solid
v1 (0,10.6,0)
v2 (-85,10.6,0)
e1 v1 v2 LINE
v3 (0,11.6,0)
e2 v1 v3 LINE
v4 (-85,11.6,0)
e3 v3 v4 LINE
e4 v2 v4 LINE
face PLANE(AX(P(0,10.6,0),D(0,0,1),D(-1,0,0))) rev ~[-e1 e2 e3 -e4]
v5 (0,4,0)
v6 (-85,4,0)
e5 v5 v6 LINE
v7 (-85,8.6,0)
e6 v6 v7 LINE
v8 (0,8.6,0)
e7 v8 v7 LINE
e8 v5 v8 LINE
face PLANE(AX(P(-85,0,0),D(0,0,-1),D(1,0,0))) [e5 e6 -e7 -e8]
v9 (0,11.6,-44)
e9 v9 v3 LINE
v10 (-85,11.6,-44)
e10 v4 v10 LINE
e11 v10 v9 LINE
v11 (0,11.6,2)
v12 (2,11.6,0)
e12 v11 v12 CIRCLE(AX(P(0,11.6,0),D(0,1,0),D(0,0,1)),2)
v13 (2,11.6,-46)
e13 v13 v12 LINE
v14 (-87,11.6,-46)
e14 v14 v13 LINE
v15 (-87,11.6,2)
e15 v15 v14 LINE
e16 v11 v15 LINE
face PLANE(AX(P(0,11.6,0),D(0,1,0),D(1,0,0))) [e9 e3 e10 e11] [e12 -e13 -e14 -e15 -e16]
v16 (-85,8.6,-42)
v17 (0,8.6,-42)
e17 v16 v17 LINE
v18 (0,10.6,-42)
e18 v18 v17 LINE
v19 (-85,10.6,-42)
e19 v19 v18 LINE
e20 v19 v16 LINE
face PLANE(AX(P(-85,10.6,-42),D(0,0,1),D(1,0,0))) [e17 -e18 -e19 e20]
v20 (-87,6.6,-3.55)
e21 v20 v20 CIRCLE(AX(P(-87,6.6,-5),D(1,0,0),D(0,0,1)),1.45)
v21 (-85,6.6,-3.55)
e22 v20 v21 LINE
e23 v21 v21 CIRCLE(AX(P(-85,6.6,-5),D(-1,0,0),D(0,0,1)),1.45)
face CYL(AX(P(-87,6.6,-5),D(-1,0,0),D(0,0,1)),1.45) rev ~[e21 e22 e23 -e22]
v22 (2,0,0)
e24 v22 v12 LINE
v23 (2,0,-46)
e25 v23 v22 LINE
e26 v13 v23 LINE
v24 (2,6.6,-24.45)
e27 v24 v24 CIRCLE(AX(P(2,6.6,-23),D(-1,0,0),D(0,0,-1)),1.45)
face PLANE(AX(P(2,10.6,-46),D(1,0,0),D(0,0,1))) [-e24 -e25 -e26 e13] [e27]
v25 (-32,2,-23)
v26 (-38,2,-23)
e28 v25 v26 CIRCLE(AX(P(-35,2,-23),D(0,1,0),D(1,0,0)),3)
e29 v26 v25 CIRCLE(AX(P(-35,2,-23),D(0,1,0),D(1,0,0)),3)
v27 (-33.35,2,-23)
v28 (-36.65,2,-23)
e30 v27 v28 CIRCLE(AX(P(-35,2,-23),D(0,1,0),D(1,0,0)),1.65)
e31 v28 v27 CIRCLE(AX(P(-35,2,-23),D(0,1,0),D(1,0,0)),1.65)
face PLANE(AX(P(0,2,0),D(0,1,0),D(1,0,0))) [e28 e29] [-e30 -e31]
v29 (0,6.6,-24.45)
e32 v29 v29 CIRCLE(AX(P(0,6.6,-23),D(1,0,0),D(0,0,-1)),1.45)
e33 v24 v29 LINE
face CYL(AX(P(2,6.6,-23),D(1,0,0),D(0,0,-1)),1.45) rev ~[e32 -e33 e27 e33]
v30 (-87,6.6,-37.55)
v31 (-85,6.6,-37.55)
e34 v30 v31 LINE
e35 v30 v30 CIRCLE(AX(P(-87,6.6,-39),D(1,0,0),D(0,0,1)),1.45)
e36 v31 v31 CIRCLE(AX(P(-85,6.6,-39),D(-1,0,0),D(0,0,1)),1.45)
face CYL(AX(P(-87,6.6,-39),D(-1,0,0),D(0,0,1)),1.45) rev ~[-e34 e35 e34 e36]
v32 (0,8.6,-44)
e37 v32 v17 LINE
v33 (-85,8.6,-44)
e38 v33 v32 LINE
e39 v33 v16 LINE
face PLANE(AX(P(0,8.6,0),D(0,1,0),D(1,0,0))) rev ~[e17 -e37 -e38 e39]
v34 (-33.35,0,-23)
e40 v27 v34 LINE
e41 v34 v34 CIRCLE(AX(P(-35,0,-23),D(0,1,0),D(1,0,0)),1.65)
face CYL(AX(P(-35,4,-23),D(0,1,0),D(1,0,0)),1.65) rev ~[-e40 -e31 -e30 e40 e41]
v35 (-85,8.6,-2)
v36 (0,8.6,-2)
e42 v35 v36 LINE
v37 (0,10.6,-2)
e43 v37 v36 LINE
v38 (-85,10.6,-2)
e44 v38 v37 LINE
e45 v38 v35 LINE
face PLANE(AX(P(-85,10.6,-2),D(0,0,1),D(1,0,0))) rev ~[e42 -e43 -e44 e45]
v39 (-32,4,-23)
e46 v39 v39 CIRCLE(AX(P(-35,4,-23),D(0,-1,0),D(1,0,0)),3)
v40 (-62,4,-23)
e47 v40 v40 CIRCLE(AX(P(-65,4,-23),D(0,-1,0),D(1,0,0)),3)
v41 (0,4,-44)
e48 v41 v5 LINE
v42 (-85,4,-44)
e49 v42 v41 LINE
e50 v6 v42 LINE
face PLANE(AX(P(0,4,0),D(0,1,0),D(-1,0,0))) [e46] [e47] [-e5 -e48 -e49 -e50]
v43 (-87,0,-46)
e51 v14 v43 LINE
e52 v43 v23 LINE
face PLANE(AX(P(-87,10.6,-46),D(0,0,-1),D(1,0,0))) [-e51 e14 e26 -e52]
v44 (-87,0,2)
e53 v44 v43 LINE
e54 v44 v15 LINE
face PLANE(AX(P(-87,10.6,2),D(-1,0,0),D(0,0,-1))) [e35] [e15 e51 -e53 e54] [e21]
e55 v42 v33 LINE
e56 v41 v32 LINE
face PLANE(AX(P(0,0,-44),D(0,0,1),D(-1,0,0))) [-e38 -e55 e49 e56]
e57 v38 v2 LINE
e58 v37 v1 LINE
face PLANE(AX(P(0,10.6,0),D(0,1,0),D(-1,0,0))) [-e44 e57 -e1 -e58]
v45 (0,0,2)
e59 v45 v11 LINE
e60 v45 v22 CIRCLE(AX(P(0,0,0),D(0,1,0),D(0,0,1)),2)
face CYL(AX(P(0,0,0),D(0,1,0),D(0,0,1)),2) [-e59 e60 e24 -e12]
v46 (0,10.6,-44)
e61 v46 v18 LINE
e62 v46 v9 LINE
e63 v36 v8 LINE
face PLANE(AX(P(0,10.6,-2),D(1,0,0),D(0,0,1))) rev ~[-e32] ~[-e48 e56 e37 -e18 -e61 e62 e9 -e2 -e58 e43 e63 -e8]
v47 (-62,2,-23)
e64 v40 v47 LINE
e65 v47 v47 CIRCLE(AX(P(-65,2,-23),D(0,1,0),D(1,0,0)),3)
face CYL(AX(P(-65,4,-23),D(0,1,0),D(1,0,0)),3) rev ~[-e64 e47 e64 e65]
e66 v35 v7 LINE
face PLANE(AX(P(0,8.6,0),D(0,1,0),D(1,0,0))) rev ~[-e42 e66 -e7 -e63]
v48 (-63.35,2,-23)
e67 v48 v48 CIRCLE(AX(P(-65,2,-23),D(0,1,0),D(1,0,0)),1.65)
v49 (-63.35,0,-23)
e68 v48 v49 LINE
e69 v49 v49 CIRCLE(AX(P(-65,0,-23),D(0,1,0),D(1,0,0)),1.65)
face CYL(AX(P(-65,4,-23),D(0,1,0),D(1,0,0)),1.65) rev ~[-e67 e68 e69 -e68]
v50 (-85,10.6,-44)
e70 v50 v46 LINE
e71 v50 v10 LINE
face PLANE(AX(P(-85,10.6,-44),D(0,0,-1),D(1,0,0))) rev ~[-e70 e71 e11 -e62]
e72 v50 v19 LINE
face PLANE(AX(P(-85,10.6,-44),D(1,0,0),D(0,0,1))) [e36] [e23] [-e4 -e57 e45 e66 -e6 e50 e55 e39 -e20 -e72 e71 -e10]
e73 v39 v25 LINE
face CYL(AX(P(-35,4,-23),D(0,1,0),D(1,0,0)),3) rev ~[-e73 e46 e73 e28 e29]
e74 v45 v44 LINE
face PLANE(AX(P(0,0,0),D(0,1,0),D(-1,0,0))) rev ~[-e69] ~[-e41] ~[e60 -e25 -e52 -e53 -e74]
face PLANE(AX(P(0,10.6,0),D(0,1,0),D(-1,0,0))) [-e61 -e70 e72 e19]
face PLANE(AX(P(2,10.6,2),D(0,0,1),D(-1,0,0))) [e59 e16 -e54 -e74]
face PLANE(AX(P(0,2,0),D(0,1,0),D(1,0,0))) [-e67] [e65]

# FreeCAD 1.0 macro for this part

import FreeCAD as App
import Part
import Sketcher
from FreeCAD import Vector
Q = App.Units.Quantity


def edges_at(feature, points):
    """Names of the edges that pass closest to the given points."""
    edges = feature.Shape.Edges
    near = lambda p: min(range(len(edges)), key=lambda i: edges[i].distToShape(Part.Vertex(*p))[0])
    return sorted({f"Edge{near(p) + 1}" for p in points})

doc = App.newDocument("Part")
params = doc.addObject("Spreadsheet::Sheet", "Params")
for row, (alias, value) in enumerate([
    ("sketch1_width", "89 mm"),
    ("sketch1_height", "48 mm"),
    ("pad1_length", "4 mm"),
    ("sketch2_width", "85 mm"),
    ("sketch2_height", "44 mm"),
    ("pad2_length", "10.6 mm"),
    ("sketch3_height", "2 mm"),
    ("sketch3_width", "85 mm"),
    ("pad3_length", "2 mm"),
    ("sketch4_width", "89 mm"),
    ("sketch4_height", "48 mm"),
    ("pad4_length", "1 mm"),
    ("fillet_radius", "2 mm"),
    ("sketch5_diameter", "2.9 mm"),
    ("pocket1_length", "15 mm"),
    ("sketch6_diameter", "2.9 mm"),
    ("pocket2_length", "15 mm"),
    ("sketch7_diameter", "3.3 mm"),
    ("pocket3_length", "10 mm"),
    ("sketch8_diameter", "6 mm"),
    ("sketch8_diameter2", "3.3 mm"),
    ("pocket4_length", "2 mm"),
], start=1):
    params.set(f"A{row}", alias)
    params.set(f"B{row}", "=" + value)
    params.setAlias(f"B{row}", alias)

body = doc.addObject("PartDesign::Body", "Body")

# Sketch on XZ plane
sketch1 = doc.addObject("Sketcher::SketchObject", "Sketch")
body.addObject(sketch1)
sketch1.AttachmentSupport = (doc.XZ_Plane, [""])
sketch1.MapMode = "FlatFace"
sketch1.addGeometry([
    Part.LineSegment(Vector(2, 2, 0), Vector(2, -46, 0)),
    Part.LineSegment(Vector(2, -46, 0), Vector(-87, -46, 0)),
    Part.LineSegment(Vector(-87, -46, 0), Vector(-87, 2, 0)),
    Part.LineSegment(Vector(-87, 2, 0), Vector(2, 2, 0)),
], False)
sketch1.addConstraint([
    Sketcher.Constraint("Coincident", 0, 2, 1, 1),
    Sketcher.Constraint("Coincident", 1, 2, 2, 1),
    Sketcher.Constraint("Coincident", 2, 2, 3, 1),
    Sketcher.Constraint("Coincident", 3, 2, 0, 1),
    Sketcher.Constraint("Vertical", 0),
    Sketcher.Constraint("Horizontal", 1),
    Sketcher.Constraint("Vertical", 2),
    Sketcher.Constraint("Horizontal", 3),
    Sketcher.Constraint("DistanceX", -1, 1, 0, 2, Q("2 mm")),
    Sketcher.Constraint("DistanceY", -1, 1, 2, 2, Q("2 mm")),
    Sketcher.Constraint("DistanceX", 1, 2, 1, 1, Q("89 mm")),
    Sketcher.Constraint("DistanceY", 0, 2, 0, 1, Q("48 mm")),
])
sketch1.setExpression("Constraints[10]", "Params.sketch1_width")
sketch1.setExpression("Constraints[11]", "Params.sketch1_height")
pad1 = doc.addObject("PartDesign::Pad", "Pad")
body.addObject(pad1)
pad1.Profile = sketch1
pad1.setExpression("Length", "Params.pad1_length")
pad1.Reversed = True

# Sketch on XZ plane
sketch2 = doc.addObject("Sketcher::SketchObject", "Sketch001")
body.addObject(sketch2)
sketch2.AttachmentSupport = (doc.XZ_Plane, [""])
sketch2.MapMode = "FlatFace"
sketch2.addGeometry([
    Part.LineSegment(Vector(-87, 2, 0), Vector(2, 2, 0)),  # 0
    Part.LineSegment(Vector(2, 2, 0), Vector(2, -46, 0)),  # 1
    Part.LineSegment(Vector(2, -46, 0), Vector(-87, -46, 0)),  # 2
    Part.LineSegment(Vector(-87, -46, 0), Vector(-87, 2, 0)),  # 3
    Part.LineSegment(Vector(0, -44, 0), Vector(0, 0, 0)),  # 4
    Part.LineSegment(Vector(0, 0, 0), Vector(-85, 0, 0)),  # 5
    Part.LineSegment(Vector(-85, 0, 0), Vector(-85, -44, 0)),  # 6
    Part.LineSegment(Vector(-85, -44, 0), Vector(0, -44, 0)),  # 7
], False)
sketch2.addConstraint([
    Sketcher.Constraint("Coincident", 0, 2, 1, 1),
    Sketcher.Constraint("Coincident", 1, 2, 2, 1),
    Sketcher.Constraint("Coincident", 2, 2, 3, 1),
    Sketcher.Constraint("Coincident", 3, 2, 0, 1),
    Sketcher.Constraint("Coincident", 4, 2, 5, 1),
    Sketcher.Constraint("Coincident", 5, 2, 6, 1),
    Sketcher.Constraint("Coincident", 6, 2, 7, 1),
    Sketcher.Constraint("Coincident", 7, 2, 4, 1),
    Sketcher.Constraint("Horizontal", 0),
    Sketcher.Constraint("Vertical", 1),
    Sketcher.Constraint("Horizontal", 2),
    Sketcher.Constraint("Vertical", 3),
    Sketcher.Constraint("Vertical", 4),
    Sketcher.Constraint("Horizontal", 5),
    Sketcher.Constraint("Vertical", 6),
    Sketcher.Constraint("Horizontal", 7),
    Sketcher.Constraint("Coincident", 4, 2, -1, 1),
    Sketcher.Constraint("DistanceX", 5, 2, 5, 1, Q("85 mm")),
    Sketcher.Constraint("DistanceY", 4, 1, 4, 2, Q("44 mm")),
    Sketcher.Constraint("DistanceX", -1, 1, 0, 2, Q("2 mm")),
    Sketcher.Constraint("DistanceY", -1, 1, 0, 2, Q("2 mm")),
    Sketcher.Constraint("DistanceX", 3, 2, 5, 2, Q("2 mm")),
    Sketcher.Constraint("DistanceY", 2, 2, 6, 2, Q("2 mm")),
])
sketch2.setExpression("Constraints[17]", "Params.sketch2_width")
sketch2.setExpression("Constraints[18]", "Params.sketch2_height")
pad2 = doc.addObject("PartDesign::Pad", "Pad001")
body.addObject(pad2)
pad2.Profile = sketch2
pad2.setExpression("Length", "Params.pad2_length")
pad2.Reversed = True

# Sketch on XZ plane
sketch3 = doc.addObject("Sketcher::SketchObject", "Sketch002")
body.addObject(sketch3)
sketch3.AttachmentSupport = (doc.XZ_Plane, [""])
sketch3.MapMode = "FlatFace"
sketch3.AttachmentOffset = App.Placement(Vector(0, 0, -10.6), App.Rotation())
sketch3.addGeometry([
    Part.LineSegment(Vector(0, -44, 0), Vector(-85, -44, 0)),  # 0
    Part.LineSegment(Vector(-85, -44, 0), Vector(-85, -42, 0)),  # 1
    Part.LineSegment(Vector(-85, -42, 0), Vector(0, -42, 0)),  # 2
    Part.LineSegment(Vector(0, -42, 0), Vector(0, -44, 0)),  # 3
    Part.LineSegment(Vector(0, -2, 0), Vector(-85, -2, 0)),  # 4
    Part.LineSegment(Vector(-85, -2, 0), Vector(-85, 0, 0)),  # 5
    Part.LineSegment(Vector(-85, 0, 0), Vector(0, 0, 0)),  # 6
    Part.LineSegment(Vector(0, 0, 0), Vector(0, -2, 0)),  # 7
], False)
sketch3.addConstraint([
    Sketcher.Constraint("Coincident", 0, 2, 1, 1),
    Sketcher.Constraint("Coincident", 1, 2, 2, 1),
    Sketcher.Constraint("Coincident", 2, 2, 3, 1),
    Sketcher.Constraint("Coincident", 3, 2, 0, 1),
    Sketcher.Constraint("Coincident", 4, 2, 5, 1),
    Sketcher.Constraint("Coincident", 5, 2, 6, 1),
    Sketcher.Constraint("Coincident", 6, 2, 7, 1),
    Sketcher.Constraint("Coincident", 7, 2, 4, 1),
    Sketcher.Constraint("Horizontal", 0),
    Sketcher.Constraint("Vertical", 1),
    Sketcher.Constraint("Horizontal", 2),
    Sketcher.Constraint("Vertical", 3),
    Sketcher.Constraint("Horizontal", 4),
    Sketcher.Constraint("Vertical", 5),
    Sketcher.Constraint("Horizontal", 6),
    Sketcher.Constraint("Vertical", 7),
    Sketcher.Constraint("Coincident", 6, 2, -1, 1),
    Sketcher.Constraint("PointOnObject", 2, 2, -2),
    Sketcher.Constraint("Vertical", 1, 2, 4, 2),
    Sketcher.Constraint("Equal", 3, 5),
    Sketcher.Constraint("DistanceY", 1, 1, 1, 2, Q("2 mm")),
    Sketcher.Constraint("DistanceX", 0, 2, 0, 1, Q("85 mm")),
    Sketcher.Constraint("DistanceY", 0, 2, -1, 1, Q("44 mm")),
])
sketch3.setExpression("Constraints[20]", "Params.sketch3_height")
sketch3.setExpression("Constraints[21]", "Params.sketch3_width")
pad3 = doc.addObject("PartDesign::Pad", "Pad002")
body.addObject(pad3)
pad3.Profile = sketch3
pad3.setExpression("Length", "Params.pad3_length")

# Sketch on XZ plane
sketch4 = doc.addObject("Sketcher::SketchObject", "Sketch003")
body.addObject(sketch4)
sketch4.AttachmentSupport = (doc.XZ_Plane, [""])
sketch4.MapMode = "FlatFace"
sketch4.AttachmentOffset = App.Placement(Vector(0, 0, -10.6), App.Rotation())
sketch4.addGeometry([
    Part.LineSegment(Vector(-87, -46, 0), Vector(-87, 2, 0)),  # 0
    Part.LineSegment(Vector(-87, 2, 0), Vector(2, 2, 0)),  # 1
    Part.LineSegment(Vector(2, 2, 0), Vector(2, -46, 0)),  # 2
    Part.LineSegment(Vector(2, -46, 0), Vector(-87, -46, 0)),  # 3
    Part.LineSegment(Vector(-85, 0, 0), Vector(-85, -44, 0)),  # 4
    Part.LineSegment(Vector(-85, -44, 0), Vector(0, -44, 0)),  # 5
    Part.LineSegment(Vector(0, -44, 0), Vector(0, 0, 0)),  # 6
    Part.LineSegment(Vector(0, 0, 0), Vector(-85, 0, 0)),  # 7
], False)
sketch4.addConstraint([
    Sketcher.Constraint("Coincident", 0, 2, 1, 1),
    Sketcher.Constraint("Coincident", 1, 2, 2, 1),
    Sketcher.Constraint("Coincident", 2, 2, 3, 1),
    Sketcher.Constraint("Coincident", 3, 2, 0, 1),
    Sketcher.Constraint("Coincident", 4, 2, 5, 1),
    Sketcher.Constraint("Coincident", 5, 2, 6, 1),
    Sketcher.Constraint("Coincident", 6, 2, 7, 1),
    Sketcher.Constraint("Coincident", 7, 2, 4, 1),
    Sketcher.Constraint("Vertical", 0),
    Sketcher.Constraint("Horizontal", 1),
    Sketcher.Constraint("Vertical", 2),
    Sketcher.Constraint("Horizontal", 3),
    Sketcher.Constraint("Vertical", 4),
    Sketcher.Constraint("Horizontal", 5),
    Sketcher.Constraint("Vertical", 6),
    Sketcher.Constraint("Horizontal", 7),
    Sketcher.Constraint("Coincident", 6, 2, -1, 1),
    Sketcher.Constraint("DistanceY", -1, 1, 0, 2, Q("2 mm")),
    Sketcher.Constraint("DistanceX", -1, 1, 1, 2, Q("2 mm")),
    Sketcher.Constraint("DistanceX", 3, 2, 4, 2, Q("2 mm")),
    Sketcher.Constraint("DistanceY", 3, 2, 4, 2, Q("2 mm")),
    Sketcher.Constraint("DistanceX", 1, 1, 1, 2, Q("89 mm")),
    Sketcher.Constraint("DistanceY", 0, 1, 0, 2, Q("48 mm")),
])
sketch4.setExpression("Constraints[21]", "Params.sketch4_width")
sketch4.setExpression("Constraints[22]", "Params.sketch4_height")
pad4 = doc.addObject("PartDesign::Pad", "Pad003")
body.addObject(pad4)
pad4.Profile = sketch4
pad4.setExpression("Length", "Params.pad4_length")
pad4.Reversed = True
doc.recompute()

fillet = doc.addObject("PartDesign::Fillet", "Fillet")
body.addObject(fillet)
fillet.Base = (pad4, edges_at(pad4, [(2, 5.8, 2)]))
fillet.setExpression("Radius", "Params.fillet_radius")

# Sketch on YZ plane
sketch5 = doc.addObject("Sketcher::SketchObject", "Sketch004")
body.addObject(sketch5)
sketch5.AttachmentSupport = (doc.YZ_Plane, [""])
sketch5.MapMode = "FlatFace"
sketch5.AttachmentOffset = App.Placement(Vector(0, 0, 2), App.Rotation())
sketch5.addGeometry(Part.Circle(Vector(6.6, -23, 0), Vector(0, 0, 1), 1.45), False)
sketch5.addConstraint([
    Sketcher.Constraint("Diameter", 0, Q("2.9 mm")),
    Sketcher.Constraint("DistanceY", 0, 3, -1, 1, Q("23 mm")),
    Sketcher.Constraint("DistanceX", -1, 1, 0, 3, Q("6.6 mm")),
])
sketch5.setExpression("Constraints[0]", "Params.sketch5_diameter")
pocket1 = doc.addObject("PartDesign::Pocket", "Pocket")
body.addObject(pocket1)
pocket1.Profile = sketch5
pocket1.setExpression("Length", "Params.pocket1_length")

# Sketch on YZ plane
sketch6 = doc.addObject("Sketcher::SketchObject", "Sketch005")
body.addObject(sketch6)
sketch6.AttachmentSupport = (doc.YZ_Plane, [""])
sketch6.MapMode = "FlatFace"
sketch6.AttachmentOffset = App.Placement(Vector(0, 0, -87), App.Rotation())
sketch6.addGeometry([
    Part.Circle(Vector(6.6, -39, 0), Vector(0, 0, 1), 1.45),
    Part.Circle(Vector(6.6, -5, 0), Vector(0, 0, 1), 1.45),
], False)
sketch6.addConstraint([
    Sketcher.Constraint("Equal", 0, 1),
    Sketcher.Constraint("Vertical", 0, 3, 1, 3),
    Sketcher.Constraint("Diameter", 0, Q("2.9 mm")),
    Sketcher.Constraint("DistanceY", 1, 3, -1, 1, Q("5 mm")),
    Sketcher.Constraint("DistanceY", 0, 3, -1, 1, Q("39 mm")),
    Sketcher.Constraint("DistanceX", -1, 1, 0, 3, Q("6.6 mm")),
])
sketch6.setExpression("Constraints[2]", "Params.sketch6_diameter")
pocket2 = doc.addObject("PartDesign::Pocket", "Pocket001")
body.addObject(pocket2)
pocket2.Profile = sketch6
pocket2.setExpression("Length", "Params.pocket2_length")
pocket2.Reversed = True

# Sketch on XZ plane
sketch7 = doc.addObject("Sketcher::SketchObject", "Sketch006")
body.addObject(sketch7)
sketch7.AttachmentSupport = (doc.XZ_Plane, [""])
sketch7.MapMode = "FlatFace"
sketch7.AttachmentOffset = App.Placement(Vector(0, 0, -4), App.Rotation())
sketch7.addGeometry([
    Part.Circle(Vector(-35, -23, 0), Vector(0, 0, 1), 1.65),
    Part.Circle(Vector(-65, -23, 0), Vector(0, 0, 1), 1.65),
], False)
sketch7.addConstraint([
    Sketcher.Constraint("Equal", 0, 1),
    Sketcher.Constraint("Horizontal", 0, 3, 1, 3),
    Sketcher.Constraint("Diameter", 0, Q("3.3 mm")),
    Sketcher.Constraint("DistanceX", 1, 3, 0, 3, Q("30 mm")),
    Sketcher.Constraint("DistanceX", 0, 3, -1, 1, Q("35 mm")),
    Sketcher.Constraint("DistanceY", 0, 3, -1, 1, Q("23 mm")),
])
sketch7.setExpression("Constraints[2]", "Params.sketch7_diameter")
pocket3 = doc.addObject("PartDesign::Pocket", "Pocket002")
body.addObject(pocket3)
pocket3.Profile = sketch7
pocket3.setExpression("Length", "Params.pocket3_length")
pocket3.Reversed = True

# Sketch on XZ plane
sketch8 = doc.addObject("Sketcher::SketchObject", "Sketch007")
body.addObject(sketch8)
sketch8.AttachmentSupport = (doc.XZ_Plane, [""])
sketch8.MapMode = "FlatFace"
sketch8.AttachmentOffset = App.Placement(Vector(0, 0, -4), App.Rotation())
sketch8.addGeometry([
    Part.Circle(Vector(-65, -23, 0), Vector(0, 0, 1), 3),
    Part.Circle(Vector(-65, -23, 0), Vector(0, 0, 1), 1.65),
    Part.Circle(Vector(-35, -23, 0), Vector(0, 0, 1), 3),
    Part.Circle(Vector(-35, -23, 0), Vector(0, 0, 1), 1.65),
], False)
sketch8.addConstraint([
    Sketcher.Constraint("Coincident", 1, 3, 0, 3),
    Sketcher.Constraint("Coincident", 3, 3, 2, 3),
    Sketcher.Constraint("Equal", 0, 2),
    Sketcher.Constraint("Equal", 1, 3),
    Sketcher.Constraint("Horizontal", 1, 3, 2, 3),
    Sketcher.Constraint("Diameter", 0, Q("6 mm")),
    Sketcher.Constraint("Diameter", 1, Q("3.3 mm")),
    Sketcher.Constraint("DistanceX", 0, 3, 2, 3, Q("30 mm")),
    Sketcher.Constraint("DistanceX", 0, 3, -1, 1, Q("65 mm")),
    Sketcher.Constraint("DistanceY", 0, 3, -1, 1, Q("23 mm")),
])
sketch8.setExpression("Constraints[5]", "Params.sketch8_diameter")
sketch8.setExpression("Constraints[6]", "Params.sketch8_diameter2")
pocket4 = doc.addObject("PartDesign::Pocket", "Pocket003")
body.addObject(pocket4)
pocket4.Profile = sketch8
pocket4.setExpression("Length", "Params.pocket4_length")
pocket4.Reversed = True

doc.recompute()
